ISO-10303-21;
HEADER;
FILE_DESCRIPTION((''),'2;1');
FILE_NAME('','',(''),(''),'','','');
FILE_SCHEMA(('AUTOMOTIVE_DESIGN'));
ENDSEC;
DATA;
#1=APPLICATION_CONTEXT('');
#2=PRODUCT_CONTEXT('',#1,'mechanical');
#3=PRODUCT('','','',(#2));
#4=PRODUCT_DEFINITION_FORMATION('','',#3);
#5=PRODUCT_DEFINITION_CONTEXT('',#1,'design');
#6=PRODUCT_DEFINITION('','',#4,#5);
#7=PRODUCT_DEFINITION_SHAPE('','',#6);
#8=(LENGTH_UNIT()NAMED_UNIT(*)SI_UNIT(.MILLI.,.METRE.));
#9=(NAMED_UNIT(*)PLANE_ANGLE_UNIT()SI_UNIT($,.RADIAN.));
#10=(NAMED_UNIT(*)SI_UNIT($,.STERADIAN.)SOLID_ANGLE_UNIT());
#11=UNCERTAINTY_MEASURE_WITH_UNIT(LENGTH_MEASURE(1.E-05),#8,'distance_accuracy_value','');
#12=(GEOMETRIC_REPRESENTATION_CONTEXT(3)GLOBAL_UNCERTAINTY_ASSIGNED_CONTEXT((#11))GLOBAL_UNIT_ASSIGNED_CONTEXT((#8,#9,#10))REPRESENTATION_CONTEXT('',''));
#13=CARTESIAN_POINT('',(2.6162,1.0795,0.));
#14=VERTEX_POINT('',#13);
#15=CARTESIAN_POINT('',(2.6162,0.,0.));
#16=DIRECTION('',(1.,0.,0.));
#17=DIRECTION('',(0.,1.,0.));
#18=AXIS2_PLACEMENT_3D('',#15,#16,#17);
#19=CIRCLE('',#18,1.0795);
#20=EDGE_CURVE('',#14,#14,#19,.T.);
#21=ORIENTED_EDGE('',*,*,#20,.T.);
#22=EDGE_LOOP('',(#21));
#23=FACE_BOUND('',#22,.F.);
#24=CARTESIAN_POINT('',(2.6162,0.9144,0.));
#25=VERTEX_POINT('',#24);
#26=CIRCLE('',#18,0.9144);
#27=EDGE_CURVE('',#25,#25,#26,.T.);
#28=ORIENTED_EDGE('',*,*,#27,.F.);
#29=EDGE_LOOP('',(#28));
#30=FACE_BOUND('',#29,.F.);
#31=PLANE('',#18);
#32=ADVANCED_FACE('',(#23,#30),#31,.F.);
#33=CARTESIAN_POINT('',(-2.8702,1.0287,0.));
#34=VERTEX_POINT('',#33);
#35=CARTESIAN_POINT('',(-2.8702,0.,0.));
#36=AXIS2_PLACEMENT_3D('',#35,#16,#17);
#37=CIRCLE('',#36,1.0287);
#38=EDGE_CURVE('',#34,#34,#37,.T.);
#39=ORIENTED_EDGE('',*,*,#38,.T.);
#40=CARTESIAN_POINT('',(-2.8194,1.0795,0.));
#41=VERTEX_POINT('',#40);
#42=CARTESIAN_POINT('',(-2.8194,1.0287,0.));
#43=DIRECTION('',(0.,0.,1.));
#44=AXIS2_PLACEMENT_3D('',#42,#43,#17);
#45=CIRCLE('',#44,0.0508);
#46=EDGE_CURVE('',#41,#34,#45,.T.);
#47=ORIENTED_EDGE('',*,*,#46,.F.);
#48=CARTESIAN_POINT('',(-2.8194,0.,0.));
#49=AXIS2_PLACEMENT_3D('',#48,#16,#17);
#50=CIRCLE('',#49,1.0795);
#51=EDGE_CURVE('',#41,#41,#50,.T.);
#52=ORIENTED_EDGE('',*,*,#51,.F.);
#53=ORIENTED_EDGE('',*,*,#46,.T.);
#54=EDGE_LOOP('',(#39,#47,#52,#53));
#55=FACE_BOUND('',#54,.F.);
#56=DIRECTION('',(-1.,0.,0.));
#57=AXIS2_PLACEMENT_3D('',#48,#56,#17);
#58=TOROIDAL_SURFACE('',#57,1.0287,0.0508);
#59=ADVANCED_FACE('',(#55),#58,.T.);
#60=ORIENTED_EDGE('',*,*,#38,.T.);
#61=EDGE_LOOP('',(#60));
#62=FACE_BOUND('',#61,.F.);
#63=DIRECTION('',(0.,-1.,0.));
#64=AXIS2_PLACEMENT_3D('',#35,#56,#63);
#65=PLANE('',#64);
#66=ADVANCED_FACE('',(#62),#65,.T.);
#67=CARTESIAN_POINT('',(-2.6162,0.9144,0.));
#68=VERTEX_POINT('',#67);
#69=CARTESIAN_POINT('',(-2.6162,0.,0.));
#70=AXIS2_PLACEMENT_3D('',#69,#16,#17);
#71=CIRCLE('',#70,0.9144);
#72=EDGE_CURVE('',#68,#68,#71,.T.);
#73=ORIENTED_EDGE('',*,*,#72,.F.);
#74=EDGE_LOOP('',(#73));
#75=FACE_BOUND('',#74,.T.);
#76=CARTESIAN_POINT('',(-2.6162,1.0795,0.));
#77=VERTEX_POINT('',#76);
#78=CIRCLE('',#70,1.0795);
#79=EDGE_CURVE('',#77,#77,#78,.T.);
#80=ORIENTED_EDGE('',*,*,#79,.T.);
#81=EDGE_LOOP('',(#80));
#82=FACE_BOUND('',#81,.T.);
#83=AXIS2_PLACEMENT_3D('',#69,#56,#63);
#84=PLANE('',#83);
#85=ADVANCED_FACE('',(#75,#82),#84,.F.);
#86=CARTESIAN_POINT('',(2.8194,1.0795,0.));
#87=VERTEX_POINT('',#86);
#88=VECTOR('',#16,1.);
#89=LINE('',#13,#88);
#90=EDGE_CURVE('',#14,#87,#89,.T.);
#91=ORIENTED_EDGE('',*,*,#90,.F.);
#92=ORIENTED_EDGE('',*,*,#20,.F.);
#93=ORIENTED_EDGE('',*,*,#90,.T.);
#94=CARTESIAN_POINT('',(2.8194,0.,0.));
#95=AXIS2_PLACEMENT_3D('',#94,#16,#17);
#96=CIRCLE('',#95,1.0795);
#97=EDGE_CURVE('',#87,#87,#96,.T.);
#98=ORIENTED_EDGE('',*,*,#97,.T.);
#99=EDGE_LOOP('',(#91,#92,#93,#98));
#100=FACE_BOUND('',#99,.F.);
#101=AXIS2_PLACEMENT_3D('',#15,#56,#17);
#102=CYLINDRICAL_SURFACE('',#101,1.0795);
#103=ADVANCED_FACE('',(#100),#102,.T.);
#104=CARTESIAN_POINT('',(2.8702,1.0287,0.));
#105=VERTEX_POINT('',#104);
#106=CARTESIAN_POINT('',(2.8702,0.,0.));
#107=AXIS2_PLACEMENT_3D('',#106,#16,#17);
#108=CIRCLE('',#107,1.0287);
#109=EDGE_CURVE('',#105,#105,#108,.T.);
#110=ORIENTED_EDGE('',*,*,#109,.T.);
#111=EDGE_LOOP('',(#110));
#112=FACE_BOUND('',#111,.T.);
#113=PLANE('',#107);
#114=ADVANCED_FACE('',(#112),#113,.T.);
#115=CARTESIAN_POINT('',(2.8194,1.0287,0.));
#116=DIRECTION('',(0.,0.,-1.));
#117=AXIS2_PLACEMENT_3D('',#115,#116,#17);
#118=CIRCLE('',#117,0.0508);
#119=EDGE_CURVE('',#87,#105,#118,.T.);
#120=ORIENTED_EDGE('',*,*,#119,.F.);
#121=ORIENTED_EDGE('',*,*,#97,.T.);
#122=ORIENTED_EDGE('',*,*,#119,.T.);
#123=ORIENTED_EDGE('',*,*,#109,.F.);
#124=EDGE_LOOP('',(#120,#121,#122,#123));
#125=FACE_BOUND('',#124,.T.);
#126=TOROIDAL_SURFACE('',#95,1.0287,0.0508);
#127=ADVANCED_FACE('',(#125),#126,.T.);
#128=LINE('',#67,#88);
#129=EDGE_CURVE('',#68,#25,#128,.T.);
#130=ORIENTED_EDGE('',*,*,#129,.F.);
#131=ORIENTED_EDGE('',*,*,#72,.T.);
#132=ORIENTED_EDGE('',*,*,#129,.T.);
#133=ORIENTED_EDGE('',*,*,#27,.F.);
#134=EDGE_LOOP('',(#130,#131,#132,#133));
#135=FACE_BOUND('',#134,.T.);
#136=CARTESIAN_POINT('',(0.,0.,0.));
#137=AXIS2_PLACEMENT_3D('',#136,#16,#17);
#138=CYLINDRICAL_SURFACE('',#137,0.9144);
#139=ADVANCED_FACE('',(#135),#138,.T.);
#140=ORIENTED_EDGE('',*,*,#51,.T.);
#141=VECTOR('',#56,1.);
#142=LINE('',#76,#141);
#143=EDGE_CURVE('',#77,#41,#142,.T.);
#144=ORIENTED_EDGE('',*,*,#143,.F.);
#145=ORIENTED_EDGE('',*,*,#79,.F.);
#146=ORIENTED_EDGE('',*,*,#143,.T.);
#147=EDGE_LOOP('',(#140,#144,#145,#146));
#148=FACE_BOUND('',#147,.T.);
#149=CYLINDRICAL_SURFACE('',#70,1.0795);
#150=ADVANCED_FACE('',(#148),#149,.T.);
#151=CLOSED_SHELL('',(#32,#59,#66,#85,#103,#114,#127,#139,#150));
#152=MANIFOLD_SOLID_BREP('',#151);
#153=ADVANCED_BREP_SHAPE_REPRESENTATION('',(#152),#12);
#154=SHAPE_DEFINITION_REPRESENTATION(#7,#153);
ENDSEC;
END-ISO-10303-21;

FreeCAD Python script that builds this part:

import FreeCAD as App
import Part
import Sketcher
Q = App.Units.Quantity


def edges_at(feature, points):
    """Names of the edges that pass closest to the given points."""
    edges = feature.Shape.Edges
    near = lambda p: min(range(len(edges)), key=lambda i: edges[i].distToShape(Part.Vertex(*p))[0])
    return sorted({f"Edge{near(p) + 1}" for p in points})

doc = App.newDocument("Part")
body = doc.addObject("PartDesign::Body", "Body")

# Sketch on YZ plane
sketch1 = doc.addObject("Sketcher::SketchObject", "Sketch")
body.addObject(sketch1)
sketch1.AttachmentSupport = (doc.YZ_Plane, [""])
sketch1.MapMode = "FlatFace"
sketch1.addGeometry(Part.Circle(App.Vector(0, 0, 0), App.Vector(0, 0, 1), 0.9144), False)
sketch1.addConstraint([
    Sketcher.Constraint("Coincident", 0, 3, -1, 1),
    Sketcher.Constraint("Diameter", 0, Q("0.072 in")),
])
pad1 = doc.addObject("PartDesign::Pad", "Pad")
body.addObject(pad1)
pad1.Profile = sketch1
pad1.Length = Q("0.103 in")

# Sketch on YZ plane
sketch2 = doc.addObject("Sketcher::SketchObject", "Sketch001")
body.addObject(sketch2)
sketch2.AttachmentSupport = (doc.YZ_Plane, [""])
sketch2.MapMode = "FlatFace"
sketch2.AttachmentOffset = App.Placement(App.Vector(0, 0, 0.103 * 25.4), App.Rotation())
sketch2.addGeometry(Part.Circle(App.Vector(0, 0, 0), App.Vector(0, 0, 1), 1.0795), False)
sketch2.addConstraint([
    Sketcher.Constraint("Coincident", 0, 3, -1, 1),
    Sketcher.Constraint("Diameter", 0, Q("0.085 in")),
])
pad2 = doc.addObject("PartDesign::Pad", "Pad001")
body.addObject(pad2)
pad2.Profile = sketch2
pad2.Length = Q("0.01 in")
doc.recompute()

fillet = doc.addObject("PartDesign::Fillet", "Fillet")
body.addObject(fillet)
fillet.Base = (pad2, edges_at(pad2, [(2.87, -1.079, 0)]))
fillet.Radius = Q("0.002 in")
body2 = doc.addObject("PartDesign::Body", "Body001")
doc.recompute()

body2.BaseFeature = body
doc.recompute()

mirroring = doc.addObject("Part::Mirroring", "Mirroring")
mirroring.Source = body
mirroring.Base = App.Vector(0, 0, 0)
mirroring.Normal = App.Vector(-1, 0, 0)
body3 = doc.addObject("PartDesign::Body", "Body002")
body3.BaseFeature = mirroring
boolean = doc.addObject("PartDesign::Boolean", "Boolean")
body2.addObject(boolean)
boolean.Type = "Fuse"
boolean.addObjects([body3])
doc.recompute()
mirroring.Visibility = False

doc.recompute()
